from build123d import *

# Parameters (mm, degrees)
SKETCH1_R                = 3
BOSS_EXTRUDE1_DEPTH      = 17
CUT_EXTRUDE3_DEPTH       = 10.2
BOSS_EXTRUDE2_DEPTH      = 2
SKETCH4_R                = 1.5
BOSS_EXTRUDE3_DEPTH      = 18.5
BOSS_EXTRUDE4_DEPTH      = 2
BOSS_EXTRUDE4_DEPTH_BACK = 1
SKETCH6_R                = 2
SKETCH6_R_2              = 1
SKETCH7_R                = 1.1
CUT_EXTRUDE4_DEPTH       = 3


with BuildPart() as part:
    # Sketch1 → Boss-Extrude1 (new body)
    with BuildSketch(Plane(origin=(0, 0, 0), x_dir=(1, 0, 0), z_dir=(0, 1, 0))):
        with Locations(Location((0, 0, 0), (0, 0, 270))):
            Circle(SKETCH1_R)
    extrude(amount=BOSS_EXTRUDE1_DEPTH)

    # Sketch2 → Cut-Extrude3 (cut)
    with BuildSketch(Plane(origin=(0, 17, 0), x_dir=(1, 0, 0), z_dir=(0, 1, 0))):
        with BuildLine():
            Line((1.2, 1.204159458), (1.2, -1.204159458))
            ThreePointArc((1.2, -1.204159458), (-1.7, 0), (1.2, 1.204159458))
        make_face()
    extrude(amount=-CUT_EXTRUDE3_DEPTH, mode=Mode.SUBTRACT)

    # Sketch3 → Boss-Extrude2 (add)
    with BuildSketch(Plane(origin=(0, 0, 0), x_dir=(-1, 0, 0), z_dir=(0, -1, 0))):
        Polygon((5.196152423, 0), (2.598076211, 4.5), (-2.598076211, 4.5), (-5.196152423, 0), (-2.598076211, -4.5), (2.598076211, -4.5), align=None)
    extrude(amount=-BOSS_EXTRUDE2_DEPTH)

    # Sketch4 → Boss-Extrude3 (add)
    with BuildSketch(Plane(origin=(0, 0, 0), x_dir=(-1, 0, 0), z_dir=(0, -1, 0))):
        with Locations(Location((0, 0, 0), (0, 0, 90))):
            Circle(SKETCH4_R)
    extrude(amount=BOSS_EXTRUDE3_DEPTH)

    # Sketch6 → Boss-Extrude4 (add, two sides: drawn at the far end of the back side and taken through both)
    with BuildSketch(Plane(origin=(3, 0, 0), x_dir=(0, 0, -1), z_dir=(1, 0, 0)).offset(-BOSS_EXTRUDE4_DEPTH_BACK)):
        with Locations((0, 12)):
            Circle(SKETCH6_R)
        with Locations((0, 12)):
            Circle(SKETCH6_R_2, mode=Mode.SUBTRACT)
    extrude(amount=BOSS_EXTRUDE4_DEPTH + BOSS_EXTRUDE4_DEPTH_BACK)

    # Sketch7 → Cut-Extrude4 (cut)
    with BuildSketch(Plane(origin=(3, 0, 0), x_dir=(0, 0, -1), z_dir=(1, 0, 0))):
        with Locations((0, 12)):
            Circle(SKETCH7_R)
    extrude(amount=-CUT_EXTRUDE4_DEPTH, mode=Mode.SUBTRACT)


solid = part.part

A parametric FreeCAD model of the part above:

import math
import FreeCAD as App
import Part
import Sketcher
from FreeCAD import Vector
Q = App.Units.Quantity

doc = App.newDocument("Part")
body = doc.addObject("PartDesign::Body", "Body")

# Sketch on XZ plane
sketch1 = body.newObject("Sketcher::SketchObject", "Sketch")
sketch1.AttachmentSupport = (doc.getObject("XZ_Plane"), [""])
sketch1.MapMode = "FlatFace"
sketch1.addGeometry(Part.Circle(Vector(0, 0, 0), Vector(0, 0, 1), 3), False)
sketch1.addConstraint(Sketcher.Constraint("Coincident", 0, 3, -1, 1))
sketch1.addConstraint(Sketcher.Constraint("Diameter", 0, Q("6 mm")))
pad1 = body.newObject("PartDesign::Pad", "Pad")
pad1.Profile = sketch1
pad1.Length = 17
pad1.Reversed = True

# Sketch on XZ plane
sketch2 = body.newObject("Sketcher::SketchObject", "Sketch001")
sketch2.AttachmentSupport = (doc.getObject("XZ_Plane"), [""])
sketch2.MapMode = "FlatFace"
sketch2.AttachmentOffset = App.Placement(Vector(0, 0, -17), App.Rotation())
sketch2.addGeometry(Part.LineSegment(Vector(1.2, 1.2, 0), Vector(1.2, -1.2, 0)), False)
sketch2.addGeometry(Part.ArcOfCircle(Part.Circle(Vector(0, 0, 0), Vector(0, 0, 1), 1.7), math.radians(45), math.radians(315)), False)
sketch2.addConstraint(Sketcher.Constraint("Coincident", 0, 1, 1, 1))
sketch2.addConstraint(Sketcher.Constraint("Coincident", 1, 2, 0, 2))
sketch2.addConstraint(Sketcher.Constraint("Vertical", 0))
sketch2.addConstraint(Sketcher.Constraint("Coincident", 1, 3, -1, 1))
sketch2.addConstraint(Sketcher.Constraint("Radius", 1, Q("1.7 mm")))
sketch2.addConstraint(Sketcher.Constraint("DistanceX", -1, 1, 0, 1, Q("1.2 mm")))
pocket1 = body.newObject("PartDesign::Pocket", "Pocket")
pocket1.Profile = sketch2
pocket1.Length = 10.2
pocket1.Reversed = True

# Sketch on XZ plane
sketch3 = body.newObject("Sketcher::SketchObject", "Sketch002")
sketch3.AttachmentSupport = (doc.getObject("XZ_Plane"), [""])
sketch3.MapMode = "FlatFace"
sketch3.addGeometry(Part.LineSegment(Vector(-5, 0, 0), Vector(-3, -4, 0)), False)
sketch3.addGeometry(Part.LineSegment(Vector(-3, -4, 0), Vector(3, -4, 0)), False)
sketch3.addGeometry(Part.LineSegment(Vector(3, -4, 0), Vector(5, 0, 0)), False)
sketch3.addGeometry(Part.LineSegment(Vector(5, 0, 0), Vector(3, 4, 0)), False)
sketch3.addGeometry(Part.LineSegment(Vector(3, 4, 0), Vector(-3, 4, 0)), False)
sketch3.addGeometry(Part.LineSegment(Vector(-3, 4, 0), Vector(-5, 0, 0)), False)
sketch3.addConstraint(Sketcher.Constraint("Coincident", 0, 2, 1, 1))
sketch3.addConstraint(Sketcher.Constraint("Coincident", 1, 2, 2, 1))
sketch3.addConstraint(Sketcher.Constraint("Coincident", 2, 2, 3, 1))
sketch3.addConstraint(Sketcher.Constraint("Coincident", 3, 2, 4, 1))
sketch3.addConstraint(Sketcher.Constraint("Coincident", 4, 2, 5, 1))
sketch3.addConstraint(Sketcher.Constraint("Coincident", 5, 2, 0, 1))
sketch3.addConstraint(Sketcher.Constraint("Horizontal", 1))
sketch3.addConstraint(Sketcher.Constraint("Horizontal", 4))
sketch3.addConstraint(Sketcher.Constraint("Symmetric", 0, 2, 3, 2, -1, 1))
sketch3.addConstraint(Sketcher.Constraint("Symmetric", 2, 2, 5, 2, -1, 1))
sketch3.addConstraint(Sketcher.Constraint("PointOnObject", 2, 2, -1))
sketch3.addConstraint(Sketcher.Constraint("Parallel", 2, 5))
sketch3.addConstraint(Sketcher.Constraint("Vertical", 1, 2, 3, 2))
sketch3.addConstraint(Sketcher.Constraint("Angle", 0, Q("-60 deg")))
sketch3.addConstraint(Sketcher.Constraint("DistanceY", 1, 2, 3, 2, Q("9 mm")))
sketch3.addConstraint(Sketcher.Constraint("DistanceX", 1, 1, 1, 2, Q("5.196152 mm")))
pad2 = body.newObject("PartDesign::Pad", "Pad001")
pad2.Profile = sketch3
pad2.Length = 2
pad2.Reversed = True

# Sketch on XZ plane
sketch4 = body.newObject("Sketcher::SketchObject", "Sketch003")
sketch4.AttachmentSupport = (doc.getObject("XZ_Plane"), [""])
sketch4.MapMode = "FlatFace"
sketch4.addGeometry(Part.Circle(Vector(0, 0, 0), Vector(0, 0, 1), 1.5), False)
sketch4.addConstraint(Sketcher.Constraint("Coincident", 0, 3, -1, 1))
sketch4.addConstraint(Sketcher.Constraint("Diameter", 0, Q("3 mm")))
pad3 = body.newObject("PartDesign::Pad", "Pad002")
pad3.Profile = sketch4
pad3.Length = 18.5

# Sketch on YZ plane
sketch5 = body.newObject("Sketcher::SketchObject", "Sketch004")
sketch5.AttachmentSupport = (doc.getObject("YZ_Plane"), [""])
sketch5.MapMode = "FlatFace"
sketch5.AttachmentOffset = App.Placement(Vector(0, 0, 3), App.Rotation())
sketch5.addGeometry(Part.Circle(Vector(12, 0, 0), Vector(0, 0, 1), 2), False)
sketch5.addGeometry(Part.Circle(Vector(12, 0, 0), Vector(0, 0, 1), 1), False)
sketch5.addConstraint(Sketcher.Constraint("Coincident", 1, 3, 0, 3))
sketch5.addConstraint(Sketcher.Constraint("PointOnObject", 0, 3, -1))
sketch5.addConstraint(Sketcher.Constraint("Diameter", 0, Q("4 mm")))
sketch5.addConstraint(Sketcher.Constraint("Diameter", 1, Q("2 mm")))
sketch5.addConstraint(Sketcher.Constraint("DistanceX", -1, 1, 0, 3, Q("12 mm")))
pad4 = body.newObject("PartDesign::Pad", "Pad003")
pad4.Profile = sketch5
pad4.Type = "TwoLengths"
pad4.Length = 2
pad4.Length2 = 1

# Sketch on YZ plane
sketch6 = body.newObject("Sketcher::SketchObject", "Sketch005")
sketch6.AttachmentSupport = (doc.getObject("YZ_Plane"), [""])
sketch6.MapMode = "FlatFace"
sketch6.AttachmentOffset = App.Placement(Vector(0, 0, 3), App.Rotation())
sketch6.addGeometry(Part.Circle(Vector(12, 0, 0), Vector(0, 0, 1), 1.1), False)
sketch6.addConstraint(Sketcher.Constraint("PointOnObject", 0, 3, -1))
sketch6.addConstraint(Sketcher.Constraint("Diameter", 0, Q("2.2 mm")))
sketch6.addConstraint(Sketcher.Constraint("DistanceX", -1, 1, 0, 3, Q("12 mm")))
pocket2 = body.newObject("PartDesign::Pocket", "Pocket001")
pocket2.Profile = sketch6
pocket2.Length = 3

doc.recompute()
